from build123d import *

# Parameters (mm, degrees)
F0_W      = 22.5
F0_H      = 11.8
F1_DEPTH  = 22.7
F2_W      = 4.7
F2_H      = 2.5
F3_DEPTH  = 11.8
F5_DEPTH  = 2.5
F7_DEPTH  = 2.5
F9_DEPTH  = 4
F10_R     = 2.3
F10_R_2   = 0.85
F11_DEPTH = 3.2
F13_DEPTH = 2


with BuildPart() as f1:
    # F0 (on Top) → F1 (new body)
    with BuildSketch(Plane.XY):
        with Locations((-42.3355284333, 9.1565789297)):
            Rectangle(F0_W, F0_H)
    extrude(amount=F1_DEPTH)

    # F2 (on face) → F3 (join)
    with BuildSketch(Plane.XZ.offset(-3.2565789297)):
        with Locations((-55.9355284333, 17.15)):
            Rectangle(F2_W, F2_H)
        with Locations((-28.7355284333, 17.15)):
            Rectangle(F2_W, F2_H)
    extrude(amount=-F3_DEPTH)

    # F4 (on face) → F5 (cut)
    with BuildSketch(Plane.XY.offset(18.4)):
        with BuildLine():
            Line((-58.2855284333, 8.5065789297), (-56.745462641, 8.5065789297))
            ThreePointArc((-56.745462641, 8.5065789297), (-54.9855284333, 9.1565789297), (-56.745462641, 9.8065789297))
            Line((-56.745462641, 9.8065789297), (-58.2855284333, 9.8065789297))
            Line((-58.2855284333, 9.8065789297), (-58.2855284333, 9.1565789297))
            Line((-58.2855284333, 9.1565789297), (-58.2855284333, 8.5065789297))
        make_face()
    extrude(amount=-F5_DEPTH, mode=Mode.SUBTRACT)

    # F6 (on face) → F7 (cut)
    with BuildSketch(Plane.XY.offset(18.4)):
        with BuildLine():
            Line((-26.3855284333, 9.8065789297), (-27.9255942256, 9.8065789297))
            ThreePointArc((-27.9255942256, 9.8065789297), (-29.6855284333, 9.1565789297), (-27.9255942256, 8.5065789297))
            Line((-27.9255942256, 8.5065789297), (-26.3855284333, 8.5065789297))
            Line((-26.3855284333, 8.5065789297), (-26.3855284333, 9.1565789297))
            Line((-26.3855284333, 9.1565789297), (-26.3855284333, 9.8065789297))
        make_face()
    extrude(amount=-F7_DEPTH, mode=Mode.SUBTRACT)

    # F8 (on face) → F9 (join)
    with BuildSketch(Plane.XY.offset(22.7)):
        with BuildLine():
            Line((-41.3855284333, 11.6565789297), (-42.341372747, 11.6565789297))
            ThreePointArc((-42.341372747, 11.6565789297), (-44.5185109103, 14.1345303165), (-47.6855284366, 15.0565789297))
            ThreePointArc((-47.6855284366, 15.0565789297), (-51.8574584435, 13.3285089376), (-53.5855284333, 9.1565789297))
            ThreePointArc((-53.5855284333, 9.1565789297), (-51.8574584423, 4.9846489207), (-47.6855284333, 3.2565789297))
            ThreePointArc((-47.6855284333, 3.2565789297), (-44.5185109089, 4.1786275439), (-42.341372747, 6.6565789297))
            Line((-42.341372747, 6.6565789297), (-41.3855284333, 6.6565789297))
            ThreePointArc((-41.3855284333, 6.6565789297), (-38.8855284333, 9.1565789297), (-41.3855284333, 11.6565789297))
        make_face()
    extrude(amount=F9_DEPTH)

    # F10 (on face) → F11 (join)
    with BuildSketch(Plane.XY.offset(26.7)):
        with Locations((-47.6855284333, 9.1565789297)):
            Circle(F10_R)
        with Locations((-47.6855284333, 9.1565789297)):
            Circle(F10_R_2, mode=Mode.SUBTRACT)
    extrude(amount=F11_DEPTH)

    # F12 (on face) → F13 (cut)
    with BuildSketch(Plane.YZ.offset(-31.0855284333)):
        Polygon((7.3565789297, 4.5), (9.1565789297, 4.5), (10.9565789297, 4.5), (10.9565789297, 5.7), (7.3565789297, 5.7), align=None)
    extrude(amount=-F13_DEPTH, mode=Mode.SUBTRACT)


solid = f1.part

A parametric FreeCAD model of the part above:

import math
import FreeCAD as App
import Part
import Sketcher
Q = App.Units.Quantity

doc = App.newDocument("Part")
body = doc.addObject("PartDesign::Body", "Body")

# Sketch on XY plane
sketch1 = body.newObject("Sketcher::SketchObject", "Sketch")
sketch1.AttachmentSupport = (doc.getObject("XY_Plane"), [""])
sketch1.MapMode = "FlatFace"
sketch1.addGeometry([
    Part.LineSegment(App.Vector(-54, 15, 0), App.Vector(-54, 3, 0)),
    Part.LineSegment(App.Vector(-54, 3, 0), App.Vector(-31, 3, 0)),
    Part.LineSegment(App.Vector(-31, 3, 0), App.Vector(-31, 15, 0)),
    Part.LineSegment(App.Vector(-31, 15, 0), App.Vector(-54, 15, 0)),
], False)
sketch1.addConstraint([
    Sketcher.Constraint("Coincident", 0, 2, 1, 1),
    Sketcher.Constraint("Coincident", 1, 2, 2, 1),
    Sketcher.Constraint("Coincident", 2, 2, 3, 1),
    Sketcher.Constraint("Coincident", 3, 2, 0, 1),
    Sketcher.Constraint("Vertical", 0),
    Sketcher.Constraint("Horizontal", 1),
    Sketcher.Constraint("Vertical", 2),
    Sketcher.Constraint("Horizontal", 3),
    Sketcher.Constraint("DistanceX", 1, 1, 1, 2, Q("22.5 mm")),
    Sketcher.Constraint("DistanceY", 0, 2, 0, 1, Q("11.8 mm")),
    Sketcher.Constraint("DistanceX", 0, 2, -1, 1, Q("53.585528 mm")),
    Sketcher.Constraint("DistanceY", -1, 1, 0, 2, Q("3.256579 mm")),
])
pad1 = body.newObject("PartDesign::Pad", "Pad")
pad1.Profile = sketch1
pad1.Length = 22.7

# Sketch on XZ plane
sketch2 = body.newObject("Sketcher::SketchObject", "Sketch001")
sketch2.AttachmentSupport = (doc.getObject("XZ_Plane"), [""])
sketch2.MapMode = "FlatFace"
sketch2.AttachmentOffset = App.Placement(App.Vector(0, 0, -3.256579), App.Rotation())
sketch2.addGeometry([
    Part.LineSegment(App.Vector(-58.3, 18.4, 0), App.Vector(-58.3, 15.9, 0)),  # 0
    Part.LineSegment(App.Vector(-58.3, 15.9, 0), App.Vector(-53.6, 15.9, 0)),  # 1
    Part.LineSegment(App.Vector(-53.6, 15.9, 0), App.Vector(-53.6, 18.4, 0)),  # 2
    Part.LineSegment(App.Vector(-53.6, 18.4, 0), App.Vector(-58.3, 18.4, 0)),  # 3
    Part.LineSegment(App.Vector(-31.1, 18.4, 0), App.Vector(-31.1, 15.9, 0)),  # 4
    Part.LineSegment(App.Vector(-31.1, 15.9, 0), App.Vector(-26.4, 15.9, 0)),  # 5
    Part.LineSegment(App.Vector(-26.4, 15.9, 0), App.Vector(-26.4, 18.4, 0)),  # 6
    Part.LineSegment(App.Vector(-26.4, 18.4, 0), App.Vector(-31.1, 18.4, 0)),  # 7
], False)
sketch2.addConstraint([
    Sketcher.Constraint("Coincident", 0, 2, 1, 1),
    Sketcher.Constraint("Coincident", 1, 2, 2, 1),
    Sketcher.Constraint("Coincident", 2, 2, 3, 1),
    Sketcher.Constraint("Coincident", 3, 2, 0, 1),
    Sketcher.Constraint("Coincident", 4, 2, 5, 1),
    Sketcher.Constraint("Coincident", 5, 2, 6, 1),
    Sketcher.Constraint("Coincident", 6, 2, 7, 1),
    Sketcher.Constraint("Coincident", 7, 2, 4, 1),
    Sketcher.Constraint("Vertical", 0),
    Sketcher.Constraint("Horizontal", 1),
    Sketcher.Constraint("Vertical", 2),
    Sketcher.Constraint("Horizontal", 3),
    Sketcher.Constraint("Vertical", 4),
    Sketcher.Constraint("Horizontal", 5),
    Sketcher.Constraint("Vertical", 6),
    Sketcher.Constraint("Horizontal", 7),
    Sketcher.Constraint("Horizontal", 1, 2, 4, 2),
    Sketcher.Constraint("Horizontal", 3, 2, 6, 2),
    Sketcher.Constraint("Equal", 3, 5),
    Sketcher.Constraint("DistanceX", 1, 1, 1, 2, Q("4.7 mm")),
    Sketcher.Constraint("DistanceY", 0, 2, 0, 1, Q("2.5 mm")),
    Sketcher.Constraint("DistanceY", -1, 1, 0, 2, Q("15.9 mm")),
    Sketcher.Constraint("DistanceX", 1, 2, 4, 2, Q("22.5 mm")),
    Sketcher.Constraint("DistanceX", 0, 2, -1, 1, Q("58.285528 mm")),
])
pad2 = body.newObject("PartDesign::Pad", "Pad001")
pad2.Profile = sketch2
pad2.Length = 11.8
pad2.Reversed = True

# Sketch on XY plane
sketch3 = body.newObject("Sketcher::SketchObject", "Sketch002")
sketch3.AttachmentSupport = (doc.getObject("XY_Plane"), [""])
sketch3.MapMode = "FlatFace"
sketch3.AttachmentOffset = App.Placement(App.Vector(0, 0, 18.4), App.Rotation())
sketch3.addGeometry([
    Part.LineSegment(App.Vector(-58.3, 8.5, 0), App.Vector(-56.7, 8.5, 0)),
    Part.ArcOfCircle(Part.Circle(App.Vector(-56, 9.2, 0), App.Vector(0, 0, 1), 1), math.radians(-139), math.radians(139)),
    Part.LineSegment(App.Vector(-56.7, 9.8, 0), App.Vector(-58.3, 9.8, 0)),
    Part.LineSegment(App.Vector(-58.3, 9.8, 0), App.Vector(-58.3, 8.5, 0)),
], False)
sketch3.addConstraint([
    Sketcher.Constraint("Coincident", 0, 2, 1, 1),
    Sketcher.Constraint("Coincident", 1, 2, 2, 1),
    Sketcher.Constraint("Coincident", 2, 2, 3, 1),
    Sketcher.Constraint("Coincident", 3, 2, 0, 1),
    Sketcher.Constraint("Horizontal", 0),
    Sketcher.Constraint("Horizontal", 2),
    Sketcher.Constraint("Vertical", 3),
    Sketcher.Constraint("Vertical", 0, 2, 1, 2),
    Sketcher.Constraint("Radius", 1, Q("1 mm")),
    Sketcher.Constraint("DistanceY", 3, 2, 3, 1, Q("1.3 mm")),
    Sketcher.Constraint("DistanceX", 2, 2, 1, 3, Q("2.3 mm")),
    Sketcher.Constraint("DistanceX", 1, 3, -1, 1, Q("55.985528 mm")),
    Sketcher.Constraint("DistanceY", -1, 1, 1, 3, Q("9.156579 mm")),
])
pocket1 = body.newObject("PartDesign::Pocket", "Pocket")
pocket1.Profile = sketch3
pocket1.Length = 2.5

# Sketch on XY plane
sketch4 = body.newObject("Sketcher::SketchObject", "Sketch003")
sketch4.AttachmentSupport = (doc.getObject("XY_Plane"), [""])
sketch4.MapMode = "FlatFace"
sketch4.AttachmentOffset = App.Placement(App.Vector(0, 0, 18.4), App.Rotation())
sketch4.addGeometry([
    Part.LineSegment(App.Vector(-26.4, 9.8, 0), App.Vector(-27.9, 9.8, 0)),
    Part.ArcOfCircle(Part.Circle(App.Vector(-28.7, 9.2, 0), App.Vector(0, 0, 1), 1), math.radians(41), math.radians(319)),
    Part.LineSegment(App.Vector(-27.9, 8.5, 0), App.Vector(-26.4, 8.5, 0)),
    Part.LineSegment(App.Vector(-26.4, 8.5, 0), App.Vector(-26.4, 9.8, 0)),
], False)
sketch4.addConstraint([
    Sketcher.Constraint("Coincident", 0, 2, 1, 1),
    Sketcher.Constraint("Coincident", 1, 2, 2, 1),
    Sketcher.Constraint("Coincident", 2, 2, 3, 1),
    Sketcher.Constraint("Coincident", 3, 2, 0, 1),
    Sketcher.Constraint("Horizontal", 0),
    Sketcher.Constraint("Horizontal", 2),
    Sketcher.Constraint("Vertical", 3),
    Sketcher.Constraint("Vertical", 0, 2, 1, 2),
    Sketcher.Constraint("Radius", 1, Q("1 mm")),
    Sketcher.Constraint("DistanceY", 3, 1, 3, 2, Q("1.3 mm")),
    Sketcher.Constraint("DistanceX", 1, 3, 2, 2, Q("2.3 mm")),
    Sketcher.Constraint("DistanceX", 1, 3, -1, 1, Q("28.685528 mm")),
    Sketcher.Constraint("DistanceY", -1, 1, 1, 3, Q("9.156579 mm")),
])
pocket2 = body.newObject("PartDesign::Pocket", "Pocket001")
pocket2.Profile = sketch4
pocket2.Length = 2.5

# Sketch on XY plane
sketch5 = body.newObject("Sketcher::SketchObject", "Sketch004")
sketch5.AttachmentSupport = (doc.getObject("XY_Plane"), [""])
sketch5.MapMode = "FlatFace"
sketch5.AttachmentOffset = App.Placement(App.Vector(0, 0, 22.7), App.Rotation())
sketch5.addGeometry([
    Part.LineSegment(App.Vector(-41.4, 11.7, 0), App.Vector(-42.3, 11.7, 0)),  # 0
    Part.ArcOfCircle(Part.Circle(App.Vector(-47.7, 9.2, 0), App.Vector(0, 0, 1), 5.9), math.radians(25), math.radians(90)),  # 1
    Part.ArcOfCircle(Part.Circle(App.Vector(-47.7, 9.2, 0), App.Vector(0, 0, 1), 5.9), math.radians(90), math.radians(180)),  # 2
    Part.ArcOfCircle(Part.Circle(App.Vector(-47.7, 9.2, 0), App.Vector(0, 0, 1), 5.9), math.radians(180), math.radians(270)),  # 3
    Part.ArcOfCircle(Part.Circle(App.Vector(-47.7, 9.2, 0), App.Vector(0, 0, 1), 5.9), math.radians(-90), math.radians(-25)),  # 4
    Part.LineSegment(App.Vector(-42.3, 6.7, 0), App.Vector(-41.4, 6.7, 0)),  # 5
    Part.ArcOfCircle(Part.Circle(App.Vector(-41.4, 9.2, 0), App.Vector(0, 0, 1), 2.5), math.radians(-90), math.radians(90)),  # 6
], False)
sketch5.addConstraint([
    Sketcher.Constraint("Coincident", 0, 2, 1, 1),
    Sketcher.Constraint("Tangent", 1, 2, 2, 1),
    Sketcher.Constraint("Tangent", 2, 2, 3, 1),
    Sketcher.Constraint("Tangent", 3, 2, 4, 1),
    Sketcher.Constraint("Coincident", 4, 2, 5, 1),
    Sketcher.Constraint("Tangent", 5, 2, 6, 1),
    Sketcher.Constraint("Tangent", 6, 2, 0, 1),
    Sketcher.Constraint("Horizontal", 0),
    Sketcher.Constraint("Horizontal", 5),
    Sketcher.Constraint("Coincident", 3, 3, 1, 3),
    Sketcher.Constraint("Equal", 3, 4),
    Sketcher.Constraint("Horizontal", 4, 3, 6, 3),
    Sketcher.Constraint("Horizontal", 6, 3, 2, 2),
    Sketcher.Constraint("Vertical", 4, 3, 1, 2),
    Sketcher.Constraint("Vertical", 1, 2, 3, 2),
    Sketcher.Constraint("Radius", 1, Q("5.9 mm")),
    Sketcher.Constraint("Radius", 6, Q("2.5 mm")),
    Sketcher.Constraint("DistanceX", 1, 3, 6, 3, Q("6.3 mm")),
    Sketcher.Constraint("DistanceX", 1, 3, -1, 1, Q("47.685528 mm")),
    Sketcher.Constraint("DistanceY", -1, 1, 1, 3, Q("9.156579 mm")),
])
pad3 = body.newObject("PartDesign::Pad", "Pad002")
pad3.Profile = sketch5
pad3.Length = 4

# Sketch on XY plane
sketch6 = body.newObject("Sketcher::SketchObject", "Sketch005")
sketch6.AttachmentSupport = (doc.getObject("XY_Plane"), [""])
sketch6.MapMode = "FlatFace"
sketch6.AttachmentOffset = App.Placement(App.Vector(0, 0, 26.7), App.Rotation())
sketch6.addGeometry([
    Part.Circle(App.Vector(-47.7, 9.2, 0), App.Vector(0, 0, 1), 2.3),
    Part.Circle(App.Vector(-47.7, 9.2, 0), App.Vector(0, 0, 1), 0.8),
], False)
sketch6.addConstraint([
    Sketcher.Constraint("Coincident", 1, 3, 0, 3),
    Sketcher.Constraint("Diameter", 0, Q("4.6 mm")),
    Sketcher.Constraint("Diameter", 1, Q("1.7 mm")),
    Sketcher.Constraint("DistanceX", 0, 3, -1, 1, Q("47.685528 mm")),
    Sketcher.Constraint("DistanceY", -1, 1, 0, 3, Q("9.156579 mm")),
])
pad4 = body.newObject("PartDesign::Pad", "Pad003")
pad4.Profile = sketch6
pad4.Length = 3.2

# Sketch on YZ plane
sketch7 = body.newObject("Sketcher::SketchObject", "Sketch006")
sketch7.AttachmentSupport = (doc.getObject("YZ_Plane"), [""])
sketch7.MapMode = "FlatFace"
sketch7.AttachmentOffset = App.Placement(App.Vector(0, 0, -31.085528), App.Rotation())
sketch7.addGeometry([
    Part.LineSegment(App.Vector(7.4, 4.5, 0), App.Vector(11, 4.5, 0)),
    Part.LineSegment(App.Vector(11, 4.5, 0), App.Vector(11, 5.7, 0)),
    Part.LineSegment(App.Vector(11, 5.7, 0), App.Vector(7.4, 5.7, 0)),
    Part.LineSegment(App.Vector(7.4, 5.7, 0), App.Vector(7.4, 4.5, 0)),
], False)
sketch7.addConstraint([
    Sketcher.Constraint("Coincident", 0, 2, 1, 1),
    Sketcher.Constraint("Coincident", 1, 2, 2, 1),
    Sketcher.Constraint("Coincident", 2, 2, 3, 1),
    Sketcher.Constraint("Coincident", 3, 2, 0, 1),
    Sketcher.Constraint("Horizontal", 0),
    Sketcher.Constraint("Vertical", 1),
    Sketcher.Constraint("Horizontal", 2),
    Sketcher.Constraint("Vertical", 3),
    Sketcher.Constraint("DistanceX", 0, 1, 0, 2, Q("3.6 mm")),
    Sketcher.Constraint("DistanceY", 1, 1, 1, 2, Q("1.2 mm")),
    Sketcher.Constraint("DistanceY", -1, 1, 0, 2, Q("4.5 mm")),
    Sketcher.Constraint("DistanceX", -1, 1, 0, 2, Q("10.956579 mm")),
])
pocket3 = body.newObject("PartDesign::Pocket", "Pocket002")
pocket3.Profile = sketch7
pocket3.Length = 2

doc.recompute()
